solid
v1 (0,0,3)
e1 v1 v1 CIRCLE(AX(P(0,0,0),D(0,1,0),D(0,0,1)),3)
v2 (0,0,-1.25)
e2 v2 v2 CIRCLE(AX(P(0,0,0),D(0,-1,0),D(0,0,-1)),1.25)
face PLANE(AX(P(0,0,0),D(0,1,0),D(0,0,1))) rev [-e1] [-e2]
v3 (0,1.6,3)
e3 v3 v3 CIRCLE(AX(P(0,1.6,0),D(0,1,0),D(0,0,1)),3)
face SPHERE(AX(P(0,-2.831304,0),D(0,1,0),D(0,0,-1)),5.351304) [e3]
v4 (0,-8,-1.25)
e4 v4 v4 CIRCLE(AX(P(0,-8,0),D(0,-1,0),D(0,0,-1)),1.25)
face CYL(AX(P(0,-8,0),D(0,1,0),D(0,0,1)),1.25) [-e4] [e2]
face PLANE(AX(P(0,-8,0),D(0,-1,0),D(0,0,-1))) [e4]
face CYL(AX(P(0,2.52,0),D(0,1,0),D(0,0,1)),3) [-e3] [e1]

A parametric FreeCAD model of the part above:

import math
import FreeCAD as App
import Part
import Sketcher
from FreeCAD import Vector

doc = App.newDocument("Part")
params = doc.addObject("Spreadsheet::Sheet", "Params")
for row, (alias, value) in enumerate([
    ("sketch1_height", "3 mm"),
    ("sketch1_width", "1.6 mm"),
    ("sketch1_width2", "2.52 mm"),
    ("revolution_angle", "360 deg"),
    ("sketch2_diameter", "2.5 mm"),
    ("pad1_length", "8 mm"),
], start=1):
    params.set(f"A{row}", alias)
    params.set(f"B{row}", "=" + value)
    params.setAlias(f"B{row}", alias)

body = doc.addObject("PartDesign::Body", "Body")

# Sketch on YZ plane
sketch1 = body.newObject("Sketcher::SketchObject", "Sketch")
sketch1.AttachmentSupport = (doc.getObject("YZ_Plane"), [""])
sketch1.MapMode = "FlatFace"
sketch1.addGeometry([
    Part.LineSegment(Vector(0, 0, 0), Vector(0, -3, 0)),
    Part.LineSegment(Vector(0, -3, 0), Vector(1.6, -3, 0)),
    Part.ArcOfCircle(Part.Circle(Vector(-2.831304, 0, 0), Vector(0, 0, 1), 5.351304), math.radians(-34.098062), math.radians(0)),
    Part.LineSegment(Vector(2.52, 0, 0), Vector(0, 0, 0)),
], False)
sketch1.addConstraint([
    Sketcher.Constraint("Coincident", 0, 2, 1, 1),
    Sketcher.Constraint("Coincident", 1, 2, 2, 1),
    Sketcher.Constraint("Coincident", 2, 2, 3, 1),
    Sketcher.Constraint("Coincident", 3, 2, 0, 1),
    Sketcher.Constraint("Vertical", 0),
    Sketcher.Constraint("Horizontal", 1),
    Sketcher.Constraint("Horizontal", 3),
    Sketcher.Constraint("Coincident", 3, 2, -1, 1),
    Sketcher.Constraint("PointOnObject", 2, 3, -1),
    Sketcher.Constraint("DistanceY", 0, 2, 0, 1, 3.0),
    Sketcher.Constraint("DistanceX", 1, 1, 1, 2, 1.6),
    Sketcher.Constraint("DistanceX", 3, 2, 3, 1, 2.52),
])
sketch1.setExpression("Constraints[9]", "Params.sketch1_height")
sketch1.setExpression("Constraints[10]", "Params.sketch1_width")
sketch1.setExpression("Constraints[11]", "Params.sketch1_width2")
revolution = body.newObject("PartDesign::Revolution", "Revolution")
revolution.Profile = sketch1
revolution.ReferenceAxis = (sketch1, ["H_Axis"])
revolution.setExpression("Angle", "Params.revolution_angle")

# Sketch on XZ plane
sketch2 = body.newObject("Sketcher::SketchObject", "Sketch001")
sketch2.AttachmentSupport = (doc.getObject("XZ_Plane"), [""])
sketch2.MapMode = "FlatFace"
sketch2.addGeometry(Part.Circle(Vector(0, 0, 0), Vector(0, 0, 1), 1.25), False)
sketch2.addConstraint([
    Sketcher.Constraint("Coincident", 0, 3, -1, 1),
    Sketcher.Constraint("Diameter", 0, 2.5),
])
sketch2.setExpression("Constraints[1]", "Params.sketch2_diameter")
pad1 = body.newObject("PartDesign::Pad", "Pad")
pad1.Profile = sketch2
pad1.setExpression("Length", "Params.pad1_length")

doc.recompute()
